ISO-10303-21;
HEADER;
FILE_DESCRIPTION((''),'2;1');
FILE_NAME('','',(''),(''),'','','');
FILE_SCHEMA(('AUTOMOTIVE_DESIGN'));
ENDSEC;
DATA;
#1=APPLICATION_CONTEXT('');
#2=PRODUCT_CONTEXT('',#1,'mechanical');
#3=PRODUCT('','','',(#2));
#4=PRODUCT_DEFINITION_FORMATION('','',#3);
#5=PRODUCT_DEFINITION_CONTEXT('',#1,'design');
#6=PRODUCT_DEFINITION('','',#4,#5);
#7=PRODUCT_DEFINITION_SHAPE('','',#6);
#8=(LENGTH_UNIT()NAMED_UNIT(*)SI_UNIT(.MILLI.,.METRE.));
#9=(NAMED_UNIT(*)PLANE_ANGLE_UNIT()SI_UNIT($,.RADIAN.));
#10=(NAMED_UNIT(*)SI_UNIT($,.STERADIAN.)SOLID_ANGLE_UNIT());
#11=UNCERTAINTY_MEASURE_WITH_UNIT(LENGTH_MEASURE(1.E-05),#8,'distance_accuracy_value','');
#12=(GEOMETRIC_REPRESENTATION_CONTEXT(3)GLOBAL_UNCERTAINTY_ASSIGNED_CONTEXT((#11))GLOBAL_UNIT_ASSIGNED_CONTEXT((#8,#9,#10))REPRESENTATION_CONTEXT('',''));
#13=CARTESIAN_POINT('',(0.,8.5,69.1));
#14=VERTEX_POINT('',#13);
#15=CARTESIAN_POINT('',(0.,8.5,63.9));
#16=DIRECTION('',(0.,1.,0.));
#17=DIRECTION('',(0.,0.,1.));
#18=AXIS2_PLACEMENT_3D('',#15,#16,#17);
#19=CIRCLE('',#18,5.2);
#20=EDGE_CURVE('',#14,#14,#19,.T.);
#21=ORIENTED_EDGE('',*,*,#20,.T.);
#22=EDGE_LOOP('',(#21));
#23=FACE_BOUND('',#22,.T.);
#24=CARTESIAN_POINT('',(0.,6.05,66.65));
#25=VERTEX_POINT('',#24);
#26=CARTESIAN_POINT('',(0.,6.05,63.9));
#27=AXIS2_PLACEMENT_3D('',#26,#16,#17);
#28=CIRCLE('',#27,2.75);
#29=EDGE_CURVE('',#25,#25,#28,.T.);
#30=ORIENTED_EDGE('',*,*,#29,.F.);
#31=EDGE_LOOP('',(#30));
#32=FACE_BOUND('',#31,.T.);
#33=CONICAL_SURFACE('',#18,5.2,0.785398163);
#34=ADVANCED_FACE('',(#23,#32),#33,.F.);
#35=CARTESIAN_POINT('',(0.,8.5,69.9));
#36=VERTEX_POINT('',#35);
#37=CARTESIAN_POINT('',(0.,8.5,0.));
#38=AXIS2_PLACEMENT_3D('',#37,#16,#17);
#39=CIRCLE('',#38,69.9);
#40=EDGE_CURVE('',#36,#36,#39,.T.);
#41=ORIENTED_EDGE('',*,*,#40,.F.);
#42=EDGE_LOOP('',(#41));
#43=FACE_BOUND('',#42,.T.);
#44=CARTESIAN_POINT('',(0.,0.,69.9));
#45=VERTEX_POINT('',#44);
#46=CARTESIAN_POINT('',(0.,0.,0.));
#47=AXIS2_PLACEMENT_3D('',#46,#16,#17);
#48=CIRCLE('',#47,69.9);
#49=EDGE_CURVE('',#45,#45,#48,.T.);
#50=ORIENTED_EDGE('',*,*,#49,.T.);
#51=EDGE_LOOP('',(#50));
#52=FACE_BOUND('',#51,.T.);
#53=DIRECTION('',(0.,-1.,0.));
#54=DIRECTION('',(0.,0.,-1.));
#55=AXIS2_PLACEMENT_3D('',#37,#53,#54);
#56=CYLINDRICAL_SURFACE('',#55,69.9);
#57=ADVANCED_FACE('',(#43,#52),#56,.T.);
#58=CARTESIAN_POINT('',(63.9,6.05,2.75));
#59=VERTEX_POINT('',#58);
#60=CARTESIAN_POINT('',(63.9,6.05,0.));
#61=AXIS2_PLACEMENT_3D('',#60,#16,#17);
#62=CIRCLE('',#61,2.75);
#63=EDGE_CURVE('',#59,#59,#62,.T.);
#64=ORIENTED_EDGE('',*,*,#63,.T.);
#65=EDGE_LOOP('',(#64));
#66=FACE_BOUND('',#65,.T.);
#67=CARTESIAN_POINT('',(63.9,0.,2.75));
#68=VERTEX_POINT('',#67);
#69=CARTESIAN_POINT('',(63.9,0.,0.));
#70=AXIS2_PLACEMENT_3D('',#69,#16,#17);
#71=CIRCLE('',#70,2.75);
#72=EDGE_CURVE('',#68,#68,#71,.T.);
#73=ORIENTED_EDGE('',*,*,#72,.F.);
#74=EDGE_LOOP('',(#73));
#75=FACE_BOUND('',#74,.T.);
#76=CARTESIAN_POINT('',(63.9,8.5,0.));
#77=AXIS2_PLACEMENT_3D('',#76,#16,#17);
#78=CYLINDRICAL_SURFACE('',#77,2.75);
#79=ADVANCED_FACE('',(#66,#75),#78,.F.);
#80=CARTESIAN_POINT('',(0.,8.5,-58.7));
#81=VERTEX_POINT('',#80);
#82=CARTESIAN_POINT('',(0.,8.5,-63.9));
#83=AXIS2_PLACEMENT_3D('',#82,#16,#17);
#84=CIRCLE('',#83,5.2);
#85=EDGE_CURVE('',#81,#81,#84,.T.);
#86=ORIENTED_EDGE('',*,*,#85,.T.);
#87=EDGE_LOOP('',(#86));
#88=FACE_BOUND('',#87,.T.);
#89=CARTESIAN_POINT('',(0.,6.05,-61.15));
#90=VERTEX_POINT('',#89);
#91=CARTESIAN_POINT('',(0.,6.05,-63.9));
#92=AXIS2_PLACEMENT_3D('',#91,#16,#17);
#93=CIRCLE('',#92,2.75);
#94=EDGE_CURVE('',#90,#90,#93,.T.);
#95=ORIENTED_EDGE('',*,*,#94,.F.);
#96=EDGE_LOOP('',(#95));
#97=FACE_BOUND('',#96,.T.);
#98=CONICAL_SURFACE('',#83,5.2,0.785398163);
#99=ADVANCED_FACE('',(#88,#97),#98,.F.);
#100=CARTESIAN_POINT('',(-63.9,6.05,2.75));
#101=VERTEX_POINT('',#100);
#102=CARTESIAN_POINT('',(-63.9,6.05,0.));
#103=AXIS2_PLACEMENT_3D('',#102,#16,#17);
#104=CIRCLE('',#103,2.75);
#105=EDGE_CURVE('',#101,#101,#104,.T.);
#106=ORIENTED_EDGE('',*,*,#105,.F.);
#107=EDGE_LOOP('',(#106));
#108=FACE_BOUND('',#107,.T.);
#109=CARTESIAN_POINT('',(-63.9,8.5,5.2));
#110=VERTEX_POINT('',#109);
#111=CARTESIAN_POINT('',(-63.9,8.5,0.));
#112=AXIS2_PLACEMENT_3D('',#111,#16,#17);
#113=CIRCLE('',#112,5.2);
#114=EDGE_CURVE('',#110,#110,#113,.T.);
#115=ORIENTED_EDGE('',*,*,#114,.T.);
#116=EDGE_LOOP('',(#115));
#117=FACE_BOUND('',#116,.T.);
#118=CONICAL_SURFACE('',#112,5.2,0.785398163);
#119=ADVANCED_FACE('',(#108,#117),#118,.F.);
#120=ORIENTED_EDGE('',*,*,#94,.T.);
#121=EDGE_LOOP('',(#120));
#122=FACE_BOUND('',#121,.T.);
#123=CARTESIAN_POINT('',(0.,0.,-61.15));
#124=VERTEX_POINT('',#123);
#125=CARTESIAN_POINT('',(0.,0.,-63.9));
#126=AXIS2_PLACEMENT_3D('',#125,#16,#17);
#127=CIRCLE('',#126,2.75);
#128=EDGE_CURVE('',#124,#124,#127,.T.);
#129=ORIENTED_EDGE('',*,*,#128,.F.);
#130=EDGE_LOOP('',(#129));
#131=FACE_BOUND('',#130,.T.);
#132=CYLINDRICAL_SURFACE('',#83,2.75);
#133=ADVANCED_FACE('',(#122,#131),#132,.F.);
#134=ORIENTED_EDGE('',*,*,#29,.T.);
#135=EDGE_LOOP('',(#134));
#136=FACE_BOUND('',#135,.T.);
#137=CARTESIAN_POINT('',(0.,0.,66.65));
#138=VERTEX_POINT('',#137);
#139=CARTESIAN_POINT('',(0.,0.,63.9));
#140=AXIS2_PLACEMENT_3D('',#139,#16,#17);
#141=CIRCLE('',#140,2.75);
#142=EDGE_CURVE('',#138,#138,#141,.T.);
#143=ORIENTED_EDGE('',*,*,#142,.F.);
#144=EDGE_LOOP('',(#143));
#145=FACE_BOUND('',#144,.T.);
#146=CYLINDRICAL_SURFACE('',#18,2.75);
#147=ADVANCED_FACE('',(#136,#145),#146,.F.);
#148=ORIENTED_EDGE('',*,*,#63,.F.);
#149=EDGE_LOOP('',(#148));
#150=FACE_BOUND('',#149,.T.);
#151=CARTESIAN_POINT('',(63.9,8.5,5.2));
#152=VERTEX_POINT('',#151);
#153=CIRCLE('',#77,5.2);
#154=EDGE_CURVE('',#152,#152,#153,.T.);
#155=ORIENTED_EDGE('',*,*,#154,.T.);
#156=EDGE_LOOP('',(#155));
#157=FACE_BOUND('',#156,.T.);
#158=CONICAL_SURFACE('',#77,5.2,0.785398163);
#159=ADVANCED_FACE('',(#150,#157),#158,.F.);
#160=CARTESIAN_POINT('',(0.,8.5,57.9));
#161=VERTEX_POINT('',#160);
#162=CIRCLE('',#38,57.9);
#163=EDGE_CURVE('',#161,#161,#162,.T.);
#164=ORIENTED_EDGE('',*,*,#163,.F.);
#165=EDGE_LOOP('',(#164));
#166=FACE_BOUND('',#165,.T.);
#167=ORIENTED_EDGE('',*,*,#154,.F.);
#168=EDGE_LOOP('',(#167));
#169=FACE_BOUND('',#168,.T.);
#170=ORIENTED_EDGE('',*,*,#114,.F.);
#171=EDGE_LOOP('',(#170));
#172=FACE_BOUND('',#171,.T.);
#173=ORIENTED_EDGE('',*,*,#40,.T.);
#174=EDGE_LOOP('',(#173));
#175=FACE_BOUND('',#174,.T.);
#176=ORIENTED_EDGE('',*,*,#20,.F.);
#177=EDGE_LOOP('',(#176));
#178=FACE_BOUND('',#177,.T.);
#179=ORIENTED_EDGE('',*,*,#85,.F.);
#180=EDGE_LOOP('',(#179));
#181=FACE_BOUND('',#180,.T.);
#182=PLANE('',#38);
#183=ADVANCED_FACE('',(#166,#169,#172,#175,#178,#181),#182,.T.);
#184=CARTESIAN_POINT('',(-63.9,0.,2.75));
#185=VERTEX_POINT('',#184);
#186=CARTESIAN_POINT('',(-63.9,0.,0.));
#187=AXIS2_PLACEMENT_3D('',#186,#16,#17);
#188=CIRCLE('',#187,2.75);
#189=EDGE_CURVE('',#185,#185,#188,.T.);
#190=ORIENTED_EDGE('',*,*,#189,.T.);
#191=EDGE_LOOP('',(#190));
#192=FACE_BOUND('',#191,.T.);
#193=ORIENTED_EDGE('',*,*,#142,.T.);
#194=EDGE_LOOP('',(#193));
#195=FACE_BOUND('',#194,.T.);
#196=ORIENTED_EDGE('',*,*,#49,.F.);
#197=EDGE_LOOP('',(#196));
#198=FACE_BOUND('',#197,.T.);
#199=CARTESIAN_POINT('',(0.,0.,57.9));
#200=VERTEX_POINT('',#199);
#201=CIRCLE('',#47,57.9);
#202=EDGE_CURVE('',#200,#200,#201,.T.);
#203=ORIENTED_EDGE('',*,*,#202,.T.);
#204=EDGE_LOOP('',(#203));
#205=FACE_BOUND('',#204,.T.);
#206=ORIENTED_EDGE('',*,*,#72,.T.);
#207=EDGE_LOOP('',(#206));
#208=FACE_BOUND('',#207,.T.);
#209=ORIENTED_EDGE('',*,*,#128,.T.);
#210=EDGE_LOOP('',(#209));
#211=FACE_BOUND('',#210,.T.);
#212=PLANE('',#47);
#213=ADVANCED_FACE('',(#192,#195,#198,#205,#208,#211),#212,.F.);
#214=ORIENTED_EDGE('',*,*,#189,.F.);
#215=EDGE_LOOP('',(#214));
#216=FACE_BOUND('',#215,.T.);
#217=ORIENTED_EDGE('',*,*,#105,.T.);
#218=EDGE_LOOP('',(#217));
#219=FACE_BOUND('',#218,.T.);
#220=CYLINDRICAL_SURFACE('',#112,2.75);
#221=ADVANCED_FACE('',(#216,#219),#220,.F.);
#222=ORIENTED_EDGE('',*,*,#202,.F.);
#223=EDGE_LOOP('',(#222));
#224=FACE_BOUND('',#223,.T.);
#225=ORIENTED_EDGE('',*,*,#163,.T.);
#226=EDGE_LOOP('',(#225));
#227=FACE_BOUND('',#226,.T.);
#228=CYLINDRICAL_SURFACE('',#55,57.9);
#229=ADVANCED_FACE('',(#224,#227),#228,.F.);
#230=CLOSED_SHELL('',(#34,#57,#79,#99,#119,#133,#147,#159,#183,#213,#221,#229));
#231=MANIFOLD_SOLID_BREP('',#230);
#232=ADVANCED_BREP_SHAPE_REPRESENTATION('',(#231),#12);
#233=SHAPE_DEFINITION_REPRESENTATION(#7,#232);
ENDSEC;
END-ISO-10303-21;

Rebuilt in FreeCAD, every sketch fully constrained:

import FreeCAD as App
import Part
import Sketcher

V = App.Vector

doc = App.newDocument("Part")
body = doc.addObject("PartDesign::Body", "Body")

sketch1 = body.newObject("Sketcher::SketchObject", "Sketch")
sketch1.AttachmentSupport = (doc.getObject("XZ_Plane"), [""])
sketch1.MapMode = "FlatFace"
sketch1.addGeometry([
    Part.Circle(V(0, 0, 0), V(0, 0, 1), 70),
    Part.Circle(V(0, 0, 0), V(0, 0, 1), 58),
], False)
sketch1.addConstraint([
    Sketcher.Constraint("Coincident", 0, 3, -1, 1),
    Sketcher.Constraint("Coincident", 1, 3, -1, 1),
    Sketcher.Constraint("Diameter", 0, 139.8),
    Sketcher.Constraint("Diameter", 1, 115.8),
])
pad1 = body.newObject("PartDesign::Pad", "Pad")
pad1.Profile = sketch1
pad1.Length = 8.5
pad1.Reversed = True

sketch2 = body.newObject("Sketcher::SketchObject", "Sketch001")
sketch2.AttachmentSupport = (doc.getObject("XZ_Plane"), [""])
sketch2.MapMode = "FlatFace"
sketch2.AttachmentOffset = App.Placement(V(0, 0, -8.5), App.Rotation())
sketch2.addGeometry([
    Part.Circle(V(0, -63.9, 0), V(0, 0, 1), 2.8),
    Part.Circle(V(63.9, 0, 0), V(0, 0, 1), 2.8),
    Part.Circle(V(0, 63.9, 0), V(0, 0, 1), 2.8),
    Part.Circle(V(-63.9, 0, 0), V(0, 0, 1), 2.8),
], False)
sketch2.addConstraint([
    Sketcher.Constraint("Equal", 0, 1),
    Sketcher.Constraint("Equal", 1, 2),
    Sketcher.Constraint("Equal", 2, 3),
    Sketcher.Constraint("Symmetric", 0, 3, 2, 3, -1, 1),
    Sketcher.Constraint("Symmetric", 1, 3, 3, 3, -1, 1),
    Sketcher.Constraint("PointOnObject", 0, 3, -2),
    Sketcher.Constraint("PointOnObject", 1, 3, -1),
    Sketcher.Constraint("Diameter", 0, 5.5),
    Sketcher.Constraint("DistanceY", 0, 3, -1, 1, 63.9),
    Sketcher.Constraint("DistanceX", -1, 1, 1, 3, 63.9),
])
doc.recompute()
hole = body.newObject("PartDesign::Hole", "Hole")
hole.Profile = sketch2
hole.ThreadType = "None"
hole.Diameter = 5.5
hole.DepthType = "Dimension"
hole.Depth = 30
hole.DrillPoint = "Angled"
hole.DrillPointAngle = 118
hole.HoleCutType = "Countersink"
hole.HoleCutDiameter = 10.4
hole.HoleCutCountersinkAngle = 90
hole.Reversed = True

doc.recompute()
